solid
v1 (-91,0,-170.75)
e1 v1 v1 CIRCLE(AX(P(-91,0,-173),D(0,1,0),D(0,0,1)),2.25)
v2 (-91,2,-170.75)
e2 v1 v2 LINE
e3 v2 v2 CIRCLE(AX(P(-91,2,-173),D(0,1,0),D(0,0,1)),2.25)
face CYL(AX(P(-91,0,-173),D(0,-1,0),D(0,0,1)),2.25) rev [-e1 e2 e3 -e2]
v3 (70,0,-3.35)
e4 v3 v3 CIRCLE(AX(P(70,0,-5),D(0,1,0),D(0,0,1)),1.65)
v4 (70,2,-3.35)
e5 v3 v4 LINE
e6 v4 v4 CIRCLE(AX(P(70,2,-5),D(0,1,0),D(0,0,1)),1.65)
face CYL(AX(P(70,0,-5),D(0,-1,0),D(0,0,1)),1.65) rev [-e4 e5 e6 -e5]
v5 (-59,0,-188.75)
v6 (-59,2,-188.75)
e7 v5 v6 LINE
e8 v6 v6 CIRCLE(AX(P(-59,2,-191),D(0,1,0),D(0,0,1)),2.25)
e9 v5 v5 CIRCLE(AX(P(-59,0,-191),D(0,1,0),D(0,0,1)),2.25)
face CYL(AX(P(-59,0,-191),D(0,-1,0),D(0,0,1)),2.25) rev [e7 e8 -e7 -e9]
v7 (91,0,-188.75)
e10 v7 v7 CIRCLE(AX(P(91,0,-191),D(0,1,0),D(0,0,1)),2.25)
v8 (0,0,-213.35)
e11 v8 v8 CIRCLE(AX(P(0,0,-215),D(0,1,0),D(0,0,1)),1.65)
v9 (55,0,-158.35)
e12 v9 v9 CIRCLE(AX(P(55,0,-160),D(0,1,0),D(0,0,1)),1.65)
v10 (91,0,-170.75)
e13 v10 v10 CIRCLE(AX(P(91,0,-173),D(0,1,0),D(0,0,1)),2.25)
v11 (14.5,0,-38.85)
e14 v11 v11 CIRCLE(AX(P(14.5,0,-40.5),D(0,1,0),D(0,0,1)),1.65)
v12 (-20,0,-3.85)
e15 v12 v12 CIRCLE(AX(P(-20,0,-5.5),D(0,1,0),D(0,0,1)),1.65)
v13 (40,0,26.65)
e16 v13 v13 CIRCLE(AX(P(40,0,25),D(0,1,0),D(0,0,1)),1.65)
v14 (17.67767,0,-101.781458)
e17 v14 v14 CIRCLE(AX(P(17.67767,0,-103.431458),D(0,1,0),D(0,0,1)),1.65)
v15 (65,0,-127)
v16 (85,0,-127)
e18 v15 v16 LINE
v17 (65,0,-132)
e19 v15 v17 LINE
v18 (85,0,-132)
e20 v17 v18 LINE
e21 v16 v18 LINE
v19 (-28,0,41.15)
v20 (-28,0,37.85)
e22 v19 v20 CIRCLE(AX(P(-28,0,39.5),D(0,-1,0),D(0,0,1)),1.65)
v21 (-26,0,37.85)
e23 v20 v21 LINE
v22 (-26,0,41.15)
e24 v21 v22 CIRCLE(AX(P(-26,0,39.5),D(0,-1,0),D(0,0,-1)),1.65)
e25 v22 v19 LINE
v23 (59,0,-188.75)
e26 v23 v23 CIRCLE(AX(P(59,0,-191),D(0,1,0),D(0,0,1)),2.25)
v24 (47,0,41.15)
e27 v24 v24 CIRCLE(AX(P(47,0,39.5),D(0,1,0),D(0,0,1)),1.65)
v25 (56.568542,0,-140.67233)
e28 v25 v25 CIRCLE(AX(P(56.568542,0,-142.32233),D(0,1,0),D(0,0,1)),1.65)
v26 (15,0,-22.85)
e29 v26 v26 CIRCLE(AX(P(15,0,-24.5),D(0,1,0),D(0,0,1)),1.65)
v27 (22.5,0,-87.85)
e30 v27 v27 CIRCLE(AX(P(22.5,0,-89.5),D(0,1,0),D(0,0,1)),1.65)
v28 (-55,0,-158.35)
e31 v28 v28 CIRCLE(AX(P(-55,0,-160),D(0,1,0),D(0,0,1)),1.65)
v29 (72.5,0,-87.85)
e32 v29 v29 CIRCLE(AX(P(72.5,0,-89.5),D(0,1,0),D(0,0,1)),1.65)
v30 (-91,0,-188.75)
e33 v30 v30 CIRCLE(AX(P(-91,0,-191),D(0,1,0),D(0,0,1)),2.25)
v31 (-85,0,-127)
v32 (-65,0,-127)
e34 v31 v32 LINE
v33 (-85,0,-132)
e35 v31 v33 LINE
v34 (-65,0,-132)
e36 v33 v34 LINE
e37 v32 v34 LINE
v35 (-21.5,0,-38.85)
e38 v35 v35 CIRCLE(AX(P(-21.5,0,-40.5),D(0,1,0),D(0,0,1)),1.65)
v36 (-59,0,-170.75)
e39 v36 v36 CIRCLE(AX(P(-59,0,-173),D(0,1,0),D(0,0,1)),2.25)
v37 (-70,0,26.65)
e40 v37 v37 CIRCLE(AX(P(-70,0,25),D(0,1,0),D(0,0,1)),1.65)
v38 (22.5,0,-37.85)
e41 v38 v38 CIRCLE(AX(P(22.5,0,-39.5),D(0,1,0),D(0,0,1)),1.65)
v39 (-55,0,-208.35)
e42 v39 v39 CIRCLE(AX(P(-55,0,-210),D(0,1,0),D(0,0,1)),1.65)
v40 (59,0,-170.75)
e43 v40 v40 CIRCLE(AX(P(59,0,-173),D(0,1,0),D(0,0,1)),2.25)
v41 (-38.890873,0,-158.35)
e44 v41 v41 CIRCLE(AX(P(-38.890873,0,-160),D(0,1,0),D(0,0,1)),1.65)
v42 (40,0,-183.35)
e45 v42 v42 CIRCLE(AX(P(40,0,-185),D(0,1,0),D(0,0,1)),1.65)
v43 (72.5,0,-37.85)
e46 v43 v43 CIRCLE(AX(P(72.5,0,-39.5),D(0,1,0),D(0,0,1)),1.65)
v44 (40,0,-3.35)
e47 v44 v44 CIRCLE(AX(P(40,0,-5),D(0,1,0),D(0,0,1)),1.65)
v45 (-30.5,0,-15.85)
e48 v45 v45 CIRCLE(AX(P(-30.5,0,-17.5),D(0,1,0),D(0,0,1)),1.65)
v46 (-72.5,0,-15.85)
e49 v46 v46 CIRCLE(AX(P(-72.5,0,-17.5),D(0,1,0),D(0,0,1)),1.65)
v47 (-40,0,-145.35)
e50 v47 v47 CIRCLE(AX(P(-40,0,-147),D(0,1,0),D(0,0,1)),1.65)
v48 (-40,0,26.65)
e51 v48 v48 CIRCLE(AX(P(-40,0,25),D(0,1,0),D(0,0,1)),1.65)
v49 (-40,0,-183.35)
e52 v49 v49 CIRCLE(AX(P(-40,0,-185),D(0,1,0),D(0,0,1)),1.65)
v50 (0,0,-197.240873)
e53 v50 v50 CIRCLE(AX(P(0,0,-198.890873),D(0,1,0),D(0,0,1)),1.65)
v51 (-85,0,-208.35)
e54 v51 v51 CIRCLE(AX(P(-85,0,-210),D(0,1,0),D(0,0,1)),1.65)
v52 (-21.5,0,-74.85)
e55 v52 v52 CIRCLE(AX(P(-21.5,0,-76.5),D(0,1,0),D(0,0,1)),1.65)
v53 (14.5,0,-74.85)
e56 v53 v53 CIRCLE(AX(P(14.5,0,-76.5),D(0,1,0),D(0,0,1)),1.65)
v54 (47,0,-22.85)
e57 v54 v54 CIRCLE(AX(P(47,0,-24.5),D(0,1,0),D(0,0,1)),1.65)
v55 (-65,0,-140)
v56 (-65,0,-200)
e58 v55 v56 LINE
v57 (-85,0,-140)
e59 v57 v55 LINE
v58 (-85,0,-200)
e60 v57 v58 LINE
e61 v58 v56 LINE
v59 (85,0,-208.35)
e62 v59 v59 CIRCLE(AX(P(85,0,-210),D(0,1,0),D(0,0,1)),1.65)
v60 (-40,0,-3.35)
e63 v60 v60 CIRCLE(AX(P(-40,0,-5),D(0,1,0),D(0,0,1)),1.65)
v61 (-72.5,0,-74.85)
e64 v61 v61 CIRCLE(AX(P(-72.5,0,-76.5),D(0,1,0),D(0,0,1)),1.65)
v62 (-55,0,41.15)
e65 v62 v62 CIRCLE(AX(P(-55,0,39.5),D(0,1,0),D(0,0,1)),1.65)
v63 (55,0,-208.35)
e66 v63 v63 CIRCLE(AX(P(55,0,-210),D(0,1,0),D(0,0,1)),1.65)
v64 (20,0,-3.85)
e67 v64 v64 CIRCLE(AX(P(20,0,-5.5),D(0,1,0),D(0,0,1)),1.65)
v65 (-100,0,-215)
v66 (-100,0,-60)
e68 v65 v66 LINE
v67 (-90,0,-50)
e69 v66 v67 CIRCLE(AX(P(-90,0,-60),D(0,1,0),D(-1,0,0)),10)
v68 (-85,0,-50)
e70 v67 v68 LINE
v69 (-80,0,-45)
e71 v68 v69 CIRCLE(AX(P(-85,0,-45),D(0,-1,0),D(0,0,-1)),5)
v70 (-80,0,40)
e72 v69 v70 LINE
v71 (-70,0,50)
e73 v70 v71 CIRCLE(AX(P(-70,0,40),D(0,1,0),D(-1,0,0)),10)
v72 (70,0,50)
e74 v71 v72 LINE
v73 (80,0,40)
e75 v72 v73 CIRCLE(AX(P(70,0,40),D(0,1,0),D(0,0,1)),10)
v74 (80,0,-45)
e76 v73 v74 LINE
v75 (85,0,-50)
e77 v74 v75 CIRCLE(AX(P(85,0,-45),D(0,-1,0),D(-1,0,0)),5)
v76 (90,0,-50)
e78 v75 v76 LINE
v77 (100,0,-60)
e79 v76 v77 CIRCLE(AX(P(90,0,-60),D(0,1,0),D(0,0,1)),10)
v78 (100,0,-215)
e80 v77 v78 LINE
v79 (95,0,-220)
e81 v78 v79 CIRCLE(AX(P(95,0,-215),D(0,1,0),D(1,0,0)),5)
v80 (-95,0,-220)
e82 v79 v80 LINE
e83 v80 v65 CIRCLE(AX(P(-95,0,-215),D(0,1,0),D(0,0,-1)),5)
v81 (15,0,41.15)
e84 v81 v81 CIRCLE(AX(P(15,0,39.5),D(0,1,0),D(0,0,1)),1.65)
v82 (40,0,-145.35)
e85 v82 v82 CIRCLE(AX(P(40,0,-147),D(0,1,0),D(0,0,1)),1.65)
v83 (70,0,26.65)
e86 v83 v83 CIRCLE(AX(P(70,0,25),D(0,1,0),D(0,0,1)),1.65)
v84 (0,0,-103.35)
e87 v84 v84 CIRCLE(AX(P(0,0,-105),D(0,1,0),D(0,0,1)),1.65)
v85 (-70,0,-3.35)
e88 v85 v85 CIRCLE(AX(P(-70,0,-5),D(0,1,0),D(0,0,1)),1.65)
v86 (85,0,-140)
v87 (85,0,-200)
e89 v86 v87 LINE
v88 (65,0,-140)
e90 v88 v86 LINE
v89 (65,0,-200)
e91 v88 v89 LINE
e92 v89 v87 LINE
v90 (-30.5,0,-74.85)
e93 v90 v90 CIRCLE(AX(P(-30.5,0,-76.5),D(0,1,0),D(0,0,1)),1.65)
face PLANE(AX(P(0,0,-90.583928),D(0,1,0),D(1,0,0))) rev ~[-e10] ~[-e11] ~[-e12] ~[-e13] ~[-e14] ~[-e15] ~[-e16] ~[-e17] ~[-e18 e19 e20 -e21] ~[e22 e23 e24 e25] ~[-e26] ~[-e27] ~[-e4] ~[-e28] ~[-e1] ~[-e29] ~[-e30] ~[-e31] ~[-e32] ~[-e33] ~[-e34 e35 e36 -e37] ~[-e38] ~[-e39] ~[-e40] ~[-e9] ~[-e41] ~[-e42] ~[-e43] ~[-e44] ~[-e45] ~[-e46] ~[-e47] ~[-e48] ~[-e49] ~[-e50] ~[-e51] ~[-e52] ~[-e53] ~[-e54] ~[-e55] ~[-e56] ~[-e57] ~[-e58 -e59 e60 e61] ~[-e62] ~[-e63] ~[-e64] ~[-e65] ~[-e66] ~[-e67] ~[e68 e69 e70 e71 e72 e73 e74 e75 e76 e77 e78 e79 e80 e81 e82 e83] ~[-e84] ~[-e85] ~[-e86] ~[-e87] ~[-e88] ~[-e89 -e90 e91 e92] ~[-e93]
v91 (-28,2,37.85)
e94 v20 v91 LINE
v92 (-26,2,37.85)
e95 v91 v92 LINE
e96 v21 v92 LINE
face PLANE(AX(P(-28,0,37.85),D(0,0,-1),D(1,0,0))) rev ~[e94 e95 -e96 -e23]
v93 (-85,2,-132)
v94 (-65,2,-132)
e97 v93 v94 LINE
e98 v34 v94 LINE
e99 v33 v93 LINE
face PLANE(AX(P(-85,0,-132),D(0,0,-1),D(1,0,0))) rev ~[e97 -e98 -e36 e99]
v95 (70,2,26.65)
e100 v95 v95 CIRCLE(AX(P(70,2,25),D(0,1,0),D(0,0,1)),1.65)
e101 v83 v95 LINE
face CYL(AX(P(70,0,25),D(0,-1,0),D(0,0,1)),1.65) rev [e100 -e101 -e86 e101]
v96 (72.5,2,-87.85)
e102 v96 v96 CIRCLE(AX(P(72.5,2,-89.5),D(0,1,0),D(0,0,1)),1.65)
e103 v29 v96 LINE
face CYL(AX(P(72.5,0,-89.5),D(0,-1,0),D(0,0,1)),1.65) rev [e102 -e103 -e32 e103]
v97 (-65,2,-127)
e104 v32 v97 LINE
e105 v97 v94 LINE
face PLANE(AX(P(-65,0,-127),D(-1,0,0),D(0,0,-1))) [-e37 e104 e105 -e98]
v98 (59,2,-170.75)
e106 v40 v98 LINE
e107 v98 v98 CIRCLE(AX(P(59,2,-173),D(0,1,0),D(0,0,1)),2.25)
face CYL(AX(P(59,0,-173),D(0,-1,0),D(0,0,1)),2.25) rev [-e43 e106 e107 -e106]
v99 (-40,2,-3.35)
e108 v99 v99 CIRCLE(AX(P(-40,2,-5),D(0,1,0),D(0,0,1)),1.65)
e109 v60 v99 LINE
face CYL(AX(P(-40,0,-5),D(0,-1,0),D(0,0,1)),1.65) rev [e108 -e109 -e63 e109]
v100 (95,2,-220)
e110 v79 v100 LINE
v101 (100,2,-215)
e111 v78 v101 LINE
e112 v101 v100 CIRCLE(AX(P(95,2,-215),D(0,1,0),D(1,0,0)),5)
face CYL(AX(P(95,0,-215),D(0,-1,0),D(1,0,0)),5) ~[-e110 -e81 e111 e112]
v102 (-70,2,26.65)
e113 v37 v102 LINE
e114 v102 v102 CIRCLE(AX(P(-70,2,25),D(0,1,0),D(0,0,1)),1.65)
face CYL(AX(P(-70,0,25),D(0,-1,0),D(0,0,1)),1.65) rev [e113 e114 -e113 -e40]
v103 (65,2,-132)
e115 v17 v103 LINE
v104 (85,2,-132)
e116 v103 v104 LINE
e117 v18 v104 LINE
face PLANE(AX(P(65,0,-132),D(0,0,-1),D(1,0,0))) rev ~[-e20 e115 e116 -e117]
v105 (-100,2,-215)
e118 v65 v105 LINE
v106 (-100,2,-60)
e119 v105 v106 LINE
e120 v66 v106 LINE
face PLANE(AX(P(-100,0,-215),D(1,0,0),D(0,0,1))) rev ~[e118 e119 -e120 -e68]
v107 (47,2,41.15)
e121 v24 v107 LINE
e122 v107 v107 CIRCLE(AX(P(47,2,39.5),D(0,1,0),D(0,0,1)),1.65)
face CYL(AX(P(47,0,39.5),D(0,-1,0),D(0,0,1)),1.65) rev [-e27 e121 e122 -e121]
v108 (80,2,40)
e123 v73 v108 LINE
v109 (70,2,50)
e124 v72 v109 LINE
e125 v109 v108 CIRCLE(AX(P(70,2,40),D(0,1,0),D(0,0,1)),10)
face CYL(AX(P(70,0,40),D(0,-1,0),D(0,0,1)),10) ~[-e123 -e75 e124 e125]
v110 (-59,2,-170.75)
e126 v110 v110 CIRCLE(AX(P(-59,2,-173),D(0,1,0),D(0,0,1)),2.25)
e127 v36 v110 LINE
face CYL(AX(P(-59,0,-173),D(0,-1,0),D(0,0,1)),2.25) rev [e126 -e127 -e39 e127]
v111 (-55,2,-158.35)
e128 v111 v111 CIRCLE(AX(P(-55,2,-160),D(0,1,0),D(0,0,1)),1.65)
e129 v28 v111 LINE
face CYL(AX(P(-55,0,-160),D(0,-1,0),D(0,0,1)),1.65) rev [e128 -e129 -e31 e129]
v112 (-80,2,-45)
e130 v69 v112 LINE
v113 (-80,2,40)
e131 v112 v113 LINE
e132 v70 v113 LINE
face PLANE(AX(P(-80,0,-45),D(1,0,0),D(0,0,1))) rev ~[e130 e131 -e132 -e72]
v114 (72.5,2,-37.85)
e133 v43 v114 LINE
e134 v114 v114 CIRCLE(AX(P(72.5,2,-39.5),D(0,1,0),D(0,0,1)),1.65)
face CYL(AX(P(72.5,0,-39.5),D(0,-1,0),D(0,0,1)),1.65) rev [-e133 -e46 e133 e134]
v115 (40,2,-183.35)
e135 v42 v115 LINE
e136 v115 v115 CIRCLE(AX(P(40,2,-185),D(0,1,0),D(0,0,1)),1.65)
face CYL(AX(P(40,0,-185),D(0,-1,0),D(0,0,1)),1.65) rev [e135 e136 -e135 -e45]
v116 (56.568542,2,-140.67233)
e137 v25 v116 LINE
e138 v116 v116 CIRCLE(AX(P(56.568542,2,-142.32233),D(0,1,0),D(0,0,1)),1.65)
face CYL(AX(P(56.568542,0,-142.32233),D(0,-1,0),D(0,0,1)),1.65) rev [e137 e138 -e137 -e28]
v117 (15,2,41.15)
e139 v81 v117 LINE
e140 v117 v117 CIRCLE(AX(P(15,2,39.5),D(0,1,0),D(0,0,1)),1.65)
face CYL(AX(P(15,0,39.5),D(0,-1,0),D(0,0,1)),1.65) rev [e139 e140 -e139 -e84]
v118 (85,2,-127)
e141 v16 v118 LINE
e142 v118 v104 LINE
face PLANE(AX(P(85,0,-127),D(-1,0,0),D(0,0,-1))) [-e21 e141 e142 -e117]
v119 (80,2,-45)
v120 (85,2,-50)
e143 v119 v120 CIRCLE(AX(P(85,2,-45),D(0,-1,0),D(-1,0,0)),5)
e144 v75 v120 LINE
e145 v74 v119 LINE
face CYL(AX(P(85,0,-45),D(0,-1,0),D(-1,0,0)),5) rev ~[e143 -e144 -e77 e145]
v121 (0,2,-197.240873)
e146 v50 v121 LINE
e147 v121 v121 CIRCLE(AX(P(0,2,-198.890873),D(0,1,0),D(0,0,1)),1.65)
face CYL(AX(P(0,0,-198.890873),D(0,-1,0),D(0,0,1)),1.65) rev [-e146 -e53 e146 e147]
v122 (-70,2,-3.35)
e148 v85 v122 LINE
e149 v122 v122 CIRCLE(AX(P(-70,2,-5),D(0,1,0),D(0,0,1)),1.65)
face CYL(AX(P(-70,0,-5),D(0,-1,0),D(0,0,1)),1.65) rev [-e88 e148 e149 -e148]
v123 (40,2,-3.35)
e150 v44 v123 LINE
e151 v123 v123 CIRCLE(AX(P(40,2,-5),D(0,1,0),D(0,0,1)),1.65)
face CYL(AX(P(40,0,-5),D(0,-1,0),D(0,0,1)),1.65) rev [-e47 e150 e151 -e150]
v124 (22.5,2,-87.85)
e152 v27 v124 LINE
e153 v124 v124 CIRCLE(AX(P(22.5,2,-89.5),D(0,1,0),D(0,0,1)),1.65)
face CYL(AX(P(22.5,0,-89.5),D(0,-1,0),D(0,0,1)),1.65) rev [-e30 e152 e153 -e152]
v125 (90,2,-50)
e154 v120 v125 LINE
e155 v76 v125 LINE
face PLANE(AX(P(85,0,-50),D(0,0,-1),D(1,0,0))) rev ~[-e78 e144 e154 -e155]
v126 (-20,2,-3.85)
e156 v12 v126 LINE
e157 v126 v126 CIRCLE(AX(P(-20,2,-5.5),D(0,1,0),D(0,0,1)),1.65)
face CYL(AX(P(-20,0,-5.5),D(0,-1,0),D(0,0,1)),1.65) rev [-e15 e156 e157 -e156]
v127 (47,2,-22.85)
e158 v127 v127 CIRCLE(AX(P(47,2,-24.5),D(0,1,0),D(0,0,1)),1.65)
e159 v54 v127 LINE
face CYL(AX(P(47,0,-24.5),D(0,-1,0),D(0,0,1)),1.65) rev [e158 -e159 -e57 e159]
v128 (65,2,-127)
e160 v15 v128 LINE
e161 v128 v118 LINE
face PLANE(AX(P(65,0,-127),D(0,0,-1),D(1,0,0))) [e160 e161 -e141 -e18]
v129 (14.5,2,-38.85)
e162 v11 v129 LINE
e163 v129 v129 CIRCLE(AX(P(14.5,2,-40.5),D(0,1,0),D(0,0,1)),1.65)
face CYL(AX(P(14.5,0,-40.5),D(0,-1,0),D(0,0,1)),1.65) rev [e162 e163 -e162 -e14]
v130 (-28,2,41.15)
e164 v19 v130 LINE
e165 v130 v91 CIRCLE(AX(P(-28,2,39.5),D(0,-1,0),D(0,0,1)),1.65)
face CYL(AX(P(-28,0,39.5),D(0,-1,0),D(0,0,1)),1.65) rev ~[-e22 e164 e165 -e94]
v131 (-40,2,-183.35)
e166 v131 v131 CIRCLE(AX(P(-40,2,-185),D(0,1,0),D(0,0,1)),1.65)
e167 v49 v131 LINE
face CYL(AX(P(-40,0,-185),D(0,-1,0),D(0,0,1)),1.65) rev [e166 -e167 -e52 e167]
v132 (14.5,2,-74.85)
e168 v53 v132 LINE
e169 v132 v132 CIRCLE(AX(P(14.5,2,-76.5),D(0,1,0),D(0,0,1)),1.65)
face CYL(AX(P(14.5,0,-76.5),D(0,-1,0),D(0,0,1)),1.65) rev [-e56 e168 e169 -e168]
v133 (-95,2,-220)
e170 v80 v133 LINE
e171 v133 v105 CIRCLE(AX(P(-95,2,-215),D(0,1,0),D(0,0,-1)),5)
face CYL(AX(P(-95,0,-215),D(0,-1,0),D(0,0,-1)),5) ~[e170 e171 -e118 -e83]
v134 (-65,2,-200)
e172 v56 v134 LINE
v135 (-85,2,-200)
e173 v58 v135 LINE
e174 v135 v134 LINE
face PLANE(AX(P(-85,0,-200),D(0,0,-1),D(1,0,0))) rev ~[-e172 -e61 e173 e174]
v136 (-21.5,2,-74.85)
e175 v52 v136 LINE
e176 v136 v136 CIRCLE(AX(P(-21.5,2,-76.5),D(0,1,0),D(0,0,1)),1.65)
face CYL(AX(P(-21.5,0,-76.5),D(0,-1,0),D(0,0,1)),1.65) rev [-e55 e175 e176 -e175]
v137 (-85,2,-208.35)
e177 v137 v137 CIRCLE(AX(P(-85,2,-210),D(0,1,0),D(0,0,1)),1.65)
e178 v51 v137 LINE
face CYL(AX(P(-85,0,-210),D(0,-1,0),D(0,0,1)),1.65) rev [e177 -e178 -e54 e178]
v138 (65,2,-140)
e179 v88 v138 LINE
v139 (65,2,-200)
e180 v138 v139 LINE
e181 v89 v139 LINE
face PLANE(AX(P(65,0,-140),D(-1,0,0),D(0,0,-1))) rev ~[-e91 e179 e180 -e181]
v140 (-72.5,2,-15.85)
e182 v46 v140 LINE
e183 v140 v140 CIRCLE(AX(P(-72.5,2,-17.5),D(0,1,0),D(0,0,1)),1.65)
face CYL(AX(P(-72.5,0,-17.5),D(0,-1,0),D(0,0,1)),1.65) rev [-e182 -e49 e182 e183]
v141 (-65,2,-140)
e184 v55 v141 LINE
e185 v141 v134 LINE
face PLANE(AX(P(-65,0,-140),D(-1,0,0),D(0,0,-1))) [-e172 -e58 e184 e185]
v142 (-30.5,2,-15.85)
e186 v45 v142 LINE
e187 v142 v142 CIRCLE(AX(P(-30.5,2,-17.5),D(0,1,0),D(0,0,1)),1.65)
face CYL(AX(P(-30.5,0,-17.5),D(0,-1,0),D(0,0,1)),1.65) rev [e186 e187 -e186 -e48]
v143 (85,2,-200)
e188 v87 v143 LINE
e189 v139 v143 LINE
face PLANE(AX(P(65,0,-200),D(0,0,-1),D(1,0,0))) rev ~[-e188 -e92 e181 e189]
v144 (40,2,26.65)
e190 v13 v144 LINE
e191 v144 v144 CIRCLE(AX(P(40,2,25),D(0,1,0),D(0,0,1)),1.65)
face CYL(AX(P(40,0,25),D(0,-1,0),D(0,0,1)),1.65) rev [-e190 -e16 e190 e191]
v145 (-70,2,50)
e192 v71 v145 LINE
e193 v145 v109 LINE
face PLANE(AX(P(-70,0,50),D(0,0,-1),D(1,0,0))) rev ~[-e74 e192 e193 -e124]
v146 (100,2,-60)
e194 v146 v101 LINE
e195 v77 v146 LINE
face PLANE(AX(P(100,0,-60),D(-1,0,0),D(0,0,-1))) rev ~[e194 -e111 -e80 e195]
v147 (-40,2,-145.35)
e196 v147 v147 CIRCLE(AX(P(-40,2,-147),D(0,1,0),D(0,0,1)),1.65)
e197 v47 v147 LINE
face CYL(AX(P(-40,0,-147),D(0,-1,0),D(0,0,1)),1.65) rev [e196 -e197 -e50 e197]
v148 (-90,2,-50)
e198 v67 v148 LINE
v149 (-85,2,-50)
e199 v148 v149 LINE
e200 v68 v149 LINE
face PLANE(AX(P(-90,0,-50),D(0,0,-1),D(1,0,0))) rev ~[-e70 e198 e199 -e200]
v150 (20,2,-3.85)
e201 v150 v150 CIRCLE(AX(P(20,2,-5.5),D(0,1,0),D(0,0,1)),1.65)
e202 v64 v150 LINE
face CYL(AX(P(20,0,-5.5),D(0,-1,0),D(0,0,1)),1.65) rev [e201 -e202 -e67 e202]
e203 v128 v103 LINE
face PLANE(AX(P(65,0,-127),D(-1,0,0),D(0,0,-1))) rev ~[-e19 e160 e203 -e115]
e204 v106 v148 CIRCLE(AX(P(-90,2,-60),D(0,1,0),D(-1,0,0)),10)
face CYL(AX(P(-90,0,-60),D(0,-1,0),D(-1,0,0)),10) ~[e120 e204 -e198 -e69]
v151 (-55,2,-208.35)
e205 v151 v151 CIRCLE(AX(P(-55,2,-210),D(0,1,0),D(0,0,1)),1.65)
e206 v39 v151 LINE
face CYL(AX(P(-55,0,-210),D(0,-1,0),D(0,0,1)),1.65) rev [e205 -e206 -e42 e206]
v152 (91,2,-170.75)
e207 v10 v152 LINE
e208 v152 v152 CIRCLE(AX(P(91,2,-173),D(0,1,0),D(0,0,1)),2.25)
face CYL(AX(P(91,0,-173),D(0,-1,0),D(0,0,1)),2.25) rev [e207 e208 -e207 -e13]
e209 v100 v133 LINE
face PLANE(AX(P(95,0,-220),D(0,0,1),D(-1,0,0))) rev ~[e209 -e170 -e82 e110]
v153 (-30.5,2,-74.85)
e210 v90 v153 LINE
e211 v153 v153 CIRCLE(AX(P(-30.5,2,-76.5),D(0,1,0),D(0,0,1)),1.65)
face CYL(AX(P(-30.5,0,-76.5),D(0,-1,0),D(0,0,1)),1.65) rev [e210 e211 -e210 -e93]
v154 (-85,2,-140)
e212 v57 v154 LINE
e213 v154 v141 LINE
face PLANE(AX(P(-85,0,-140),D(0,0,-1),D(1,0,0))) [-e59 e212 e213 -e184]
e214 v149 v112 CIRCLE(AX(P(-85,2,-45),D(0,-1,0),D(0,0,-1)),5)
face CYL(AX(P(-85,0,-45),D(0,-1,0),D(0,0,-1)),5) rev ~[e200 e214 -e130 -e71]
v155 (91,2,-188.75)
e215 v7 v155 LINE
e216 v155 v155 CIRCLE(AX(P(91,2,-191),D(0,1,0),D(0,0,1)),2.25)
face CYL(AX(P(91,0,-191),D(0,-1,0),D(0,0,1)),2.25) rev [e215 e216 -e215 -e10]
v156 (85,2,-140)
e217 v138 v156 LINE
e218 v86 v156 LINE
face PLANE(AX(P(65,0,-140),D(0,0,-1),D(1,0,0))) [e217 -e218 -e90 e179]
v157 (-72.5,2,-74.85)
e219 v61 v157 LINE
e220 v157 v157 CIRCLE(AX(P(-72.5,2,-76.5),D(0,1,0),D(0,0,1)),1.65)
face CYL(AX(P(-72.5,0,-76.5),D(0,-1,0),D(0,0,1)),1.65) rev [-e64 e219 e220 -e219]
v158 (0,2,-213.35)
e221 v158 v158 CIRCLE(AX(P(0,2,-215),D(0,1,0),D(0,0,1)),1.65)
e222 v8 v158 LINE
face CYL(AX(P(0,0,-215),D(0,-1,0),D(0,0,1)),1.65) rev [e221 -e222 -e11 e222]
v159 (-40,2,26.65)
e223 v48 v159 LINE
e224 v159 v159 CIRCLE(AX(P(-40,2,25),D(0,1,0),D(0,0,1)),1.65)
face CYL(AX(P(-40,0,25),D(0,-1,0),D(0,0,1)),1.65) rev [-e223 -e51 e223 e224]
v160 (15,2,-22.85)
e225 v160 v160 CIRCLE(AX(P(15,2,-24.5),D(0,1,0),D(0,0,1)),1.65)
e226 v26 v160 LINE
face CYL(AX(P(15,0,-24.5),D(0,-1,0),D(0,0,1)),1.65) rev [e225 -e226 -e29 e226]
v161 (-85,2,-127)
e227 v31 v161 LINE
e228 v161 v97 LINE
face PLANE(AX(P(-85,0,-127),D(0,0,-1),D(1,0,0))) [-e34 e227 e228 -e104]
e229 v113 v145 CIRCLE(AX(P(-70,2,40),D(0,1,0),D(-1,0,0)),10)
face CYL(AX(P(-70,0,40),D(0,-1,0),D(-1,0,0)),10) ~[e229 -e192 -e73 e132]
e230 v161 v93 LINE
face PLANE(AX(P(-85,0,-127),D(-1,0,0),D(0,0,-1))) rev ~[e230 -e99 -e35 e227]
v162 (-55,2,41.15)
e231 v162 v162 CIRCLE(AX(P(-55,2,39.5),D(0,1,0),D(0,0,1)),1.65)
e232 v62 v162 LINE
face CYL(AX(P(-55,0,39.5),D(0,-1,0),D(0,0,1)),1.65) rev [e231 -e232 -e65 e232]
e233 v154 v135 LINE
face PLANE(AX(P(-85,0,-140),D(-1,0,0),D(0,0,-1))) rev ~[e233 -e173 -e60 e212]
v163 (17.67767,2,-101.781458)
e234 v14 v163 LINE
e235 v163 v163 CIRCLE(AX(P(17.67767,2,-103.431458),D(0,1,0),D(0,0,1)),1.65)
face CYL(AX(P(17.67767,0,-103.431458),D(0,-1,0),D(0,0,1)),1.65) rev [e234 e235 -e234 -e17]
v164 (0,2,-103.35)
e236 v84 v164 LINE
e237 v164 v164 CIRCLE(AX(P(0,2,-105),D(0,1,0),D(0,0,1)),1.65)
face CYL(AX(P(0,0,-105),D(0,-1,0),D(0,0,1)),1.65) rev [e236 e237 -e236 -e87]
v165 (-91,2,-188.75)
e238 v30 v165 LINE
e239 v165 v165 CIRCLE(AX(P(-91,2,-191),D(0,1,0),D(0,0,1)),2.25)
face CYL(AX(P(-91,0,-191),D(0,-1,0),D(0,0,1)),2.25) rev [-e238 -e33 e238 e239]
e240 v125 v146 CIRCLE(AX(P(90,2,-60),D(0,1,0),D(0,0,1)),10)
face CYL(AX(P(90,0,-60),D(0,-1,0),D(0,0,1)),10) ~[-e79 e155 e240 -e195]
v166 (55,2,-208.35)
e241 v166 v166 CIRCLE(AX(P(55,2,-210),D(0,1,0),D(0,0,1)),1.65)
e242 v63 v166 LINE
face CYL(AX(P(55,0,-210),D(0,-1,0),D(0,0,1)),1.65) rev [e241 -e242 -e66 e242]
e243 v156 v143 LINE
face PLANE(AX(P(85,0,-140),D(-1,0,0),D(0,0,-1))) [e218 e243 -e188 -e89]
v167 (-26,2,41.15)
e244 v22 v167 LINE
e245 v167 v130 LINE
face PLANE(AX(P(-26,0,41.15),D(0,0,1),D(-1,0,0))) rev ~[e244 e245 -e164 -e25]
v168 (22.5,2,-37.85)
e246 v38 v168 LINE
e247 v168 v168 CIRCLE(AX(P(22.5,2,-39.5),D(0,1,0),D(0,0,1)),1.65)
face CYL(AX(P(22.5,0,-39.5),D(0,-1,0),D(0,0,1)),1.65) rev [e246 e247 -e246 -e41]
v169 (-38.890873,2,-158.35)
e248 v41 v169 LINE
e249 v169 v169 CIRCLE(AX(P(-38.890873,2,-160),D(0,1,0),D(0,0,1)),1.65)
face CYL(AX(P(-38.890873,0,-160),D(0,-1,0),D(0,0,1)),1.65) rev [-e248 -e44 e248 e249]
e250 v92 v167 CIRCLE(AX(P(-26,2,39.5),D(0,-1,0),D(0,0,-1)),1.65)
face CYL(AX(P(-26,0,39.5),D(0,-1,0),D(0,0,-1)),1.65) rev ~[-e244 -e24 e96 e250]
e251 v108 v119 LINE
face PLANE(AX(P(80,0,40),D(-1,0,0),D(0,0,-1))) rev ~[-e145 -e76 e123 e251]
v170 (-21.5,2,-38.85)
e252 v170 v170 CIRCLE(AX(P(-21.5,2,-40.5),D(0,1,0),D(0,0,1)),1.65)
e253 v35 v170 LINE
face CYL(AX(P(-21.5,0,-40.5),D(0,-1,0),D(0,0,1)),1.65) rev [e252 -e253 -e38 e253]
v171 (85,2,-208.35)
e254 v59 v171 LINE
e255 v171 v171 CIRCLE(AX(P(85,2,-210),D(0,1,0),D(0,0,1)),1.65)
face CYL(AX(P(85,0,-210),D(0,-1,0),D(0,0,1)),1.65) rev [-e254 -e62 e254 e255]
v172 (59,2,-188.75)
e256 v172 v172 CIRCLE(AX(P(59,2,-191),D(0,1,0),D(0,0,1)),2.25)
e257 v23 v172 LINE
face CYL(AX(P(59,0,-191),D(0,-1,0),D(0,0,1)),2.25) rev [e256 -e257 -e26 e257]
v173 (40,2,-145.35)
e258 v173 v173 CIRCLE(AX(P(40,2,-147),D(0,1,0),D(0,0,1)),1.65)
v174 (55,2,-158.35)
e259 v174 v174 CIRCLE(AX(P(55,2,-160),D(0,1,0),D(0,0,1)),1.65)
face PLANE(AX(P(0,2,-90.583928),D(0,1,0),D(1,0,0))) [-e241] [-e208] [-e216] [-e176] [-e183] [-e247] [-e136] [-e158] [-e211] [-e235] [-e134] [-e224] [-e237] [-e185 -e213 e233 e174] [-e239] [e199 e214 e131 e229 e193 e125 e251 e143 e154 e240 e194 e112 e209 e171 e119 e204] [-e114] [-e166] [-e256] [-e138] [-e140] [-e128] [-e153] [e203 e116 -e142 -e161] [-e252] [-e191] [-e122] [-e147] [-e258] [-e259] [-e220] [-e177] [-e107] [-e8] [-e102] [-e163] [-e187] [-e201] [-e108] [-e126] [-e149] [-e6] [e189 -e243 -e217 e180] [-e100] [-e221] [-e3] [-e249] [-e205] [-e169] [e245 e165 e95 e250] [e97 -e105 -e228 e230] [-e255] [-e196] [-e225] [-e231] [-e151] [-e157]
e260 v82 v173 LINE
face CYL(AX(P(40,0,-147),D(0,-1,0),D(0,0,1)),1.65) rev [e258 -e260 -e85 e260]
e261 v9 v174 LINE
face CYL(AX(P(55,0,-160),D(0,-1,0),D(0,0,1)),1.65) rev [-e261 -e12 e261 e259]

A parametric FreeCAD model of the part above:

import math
import FreeCAD as App
import Part
import Sketcher
from FreeCAD import Vector

doc = App.newDocument("Part")
body = doc.addObject("PartDesign::Body", "Body")

# Sketch on XZ plane
sketch1 = doc.addObject("Sketcher::SketchObject", "Sketch")
body.addObject(sketch1)
sketch1.AttachmentSupport = (doc.XZ_Plane, [""])
sketch1.MapMode = "FlatFace"
sketch1.addGeometry(Part.LineSegment(Vector(85, -50, 0), Vector(90, -50, 0)), False)
sketch1.addGeometry(Part.ArcOfCircle(Part.Circle(Vector(90, -60, 0), Vector(0, 0, 1), 10), math.radians(0), math.radians(90)), False)
sketch1.addGeometry(Part.LineSegment(Vector(100, -60, 0), Vector(100, -215, 0)), False)
sketch1.addGeometry(Part.ArcOfCircle(Part.Circle(Vector(95, -215, 0), Vector(0, 0, 1), 5), math.radians(-90), math.radians(0)), False)
sketch1.addGeometry(Part.LineSegment(Vector(95, -220, 0), Vector(-95, -220, 0)), False)
sketch1.addGeometry(Part.ArcOfCircle(Part.Circle(Vector(-95, -215, 0), Vector(0, 0, 1), 5), math.radians(180), math.radians(270)), False)
sketch1.addGeometry(Part.LineSegment(Vector(-100, -215, 0), Vector(-100, -60, 0)), False)
sketch1.addGeometry(Part.ArcOfCircle(Part.Circle(Vector(-90, -60, 0), Vector(0, 0, 1), 10), math.radians(90), math.radians(180)), False)
sketch1.addGeometry(Part.LineSegment(Vector(-90, -50, 0), Vector(-85, -50, 0)), False)
sketch1.addGeometry(Part.ArcOfCircle(Part.Circle(Vector(-85, -45, 0), Vector(0, 0, 1), 5), math.radians(-90), math.radians(0)), False)
sketch1.addGeometry(Part.LineSegment(Vector(-80, -45, 0), Vector(-80, 40, 0)), False)
sketch1.addGeometry(Part.ArcOfCircle(Part.Circle(Vector(-70, 40, 0), Vector(0, 0, 1), 10), math.radians(90), math.radians(180)), False)
sketch1.addGeometry(Part.LineSegment(Vector(-70, 50, 0), Vector(70, 50, 0)), False)
sketch1.addGeometry(Part.ArcOfCircle(Part.Circle(Vector(70, 40, 0), Vector(0, 0, 1), 10), math.radians(0), math.radians(90)), False)
sketch1.addGeometry(Part.LineSegment(Vector(80, 40, 0), Vector(80, -45, 0)), False)
sketch1.addGeometry(Part.ArcOfCircle(Part.Circle(Vector(85, -45, 0), Vector(0, 0, 1), 5), math.radians(180), math.radians(270)), False)
sketch1.addGeometry(Part.Circle(Vector(-70, 25, 0), Vector(0, 0, 1), 1.6), False)
sketch1.addGeometry(Part.Circle(Vector(-55, 39.5, 0), Vector(0, 0, 1), 1.6), False)
sketch1.addGeometry(Part.Circle(Vector(-70, -5, 0), Vector(0, 0, 1), 1.6), False)
sketch1.addGeometry(Part.Circle(Vector(-72.5, -17.5, 0), Vector(0, 0, 1), 1.6), False)
sketch1.addGeometry(Part.ArcOfCircle(Part.Circle(Vector(-28, 39.5, 0), Vector(0, 0, 1), 1.6), math.radians(90), math.radians(270)), False)
sketch1.addGeometry(Part.LineSegment(Vector(-28, 37.9, 0), Vector(-26, 37.9, 0)), False)
sketch1.addGeometry(Part.ArcOfCircle(Part.Circle(Vector(-26, 39.5, 0), Vector(0, 0, 1), 1.6), math.radians(-90), math.radians(90)), False)
sketch1.addGeometry(Part.LineSegment(Vector(-26, 41.1, 0), Vector(-28, 41.1, 0)), False)
sketch1.addGeometry(Part.Circle(Vector(-40, 25, 0), Vector(0, 0, 1), 1.6), False)
sketch1.addGeometry(Part.Circle(Vector(-40, -5, 0), Vector(0, 0, 1), 1.6), False)
sketch1.addGeometry(Part.Circle(Vector(-30.5, -17.5, 0), Vector(0, 0, 1), 1.6), False)
sketch1.addGeometry(Part.Circle(Vector(-20, -5.5, 0), Vector(0, 0, 1), 1.6), False)
sketch1.addGeometry(Part.Circle(Vector(-72.5, -76.5, 0), Vector(0, 0, 1), 1.6), False)
sketch1.addGeometry(Part.Circle(Vector(-21.5, -40.5, 0), Vector(0, 0, 1), 1.6), False)
sketch1.addGeometry(Part.Circle(Vector(-30.5, -76.5, 0), Vector(0, 0, 1), 1.6), False)
sketch1.addGeometry(Part.Circle(Vector(-21.5, -76.5, 0), Vector(0, 0, 1), 1.6), False)
sketch1.addGeometry(Part.Circle(Vector(15, 39.5, 0), Vector(0, 0, 1), 1.6), False)
sketch1.addGeometry(Part.Circle(Vector(40, 25, 0), Vector(0, 0, 1), 1.6), False)
sketch1.addGeometry(Part.Circle(Vector(20, -5.5, 0), Vector(0, 0, 1), 1.6), False)
sketch1.addGeometry(Part.Circle(Vector(40, -5, 0), Vector(0, 0, 1), 1.6), False)
sketch1.addGeometry(Part.Circle(Vector(47, 39.5, 0), Vector(0, 0, 1), 1.6), False)
sketch1.addGeometry(Part.Circle(Vector(70, 25, 0), Vector(0, 0, 1), 1.6), False)
sketch1.addGeometry(Part.Circle(Vector(70, -5, 0), Vector(0, 0, 1), 1.6), False)
sketch1.addGeometry(Part.Circle(Vector(15, -24.5, 0), Vector(0, 0, 1), 1.6), False)
sketch1.addGeometry(Part.Circle(Vector(14.5, -40.5, 0), Vector(0, 0, 1), 1.6), False)
sketch1.addGeometry(Part.Circle(Vector(22.5, -39.5, 0), Vector(0, 0, 1), 1.6), False)
sketch1.addGeometry(Part.Circle(Vector(14.5, -76.5, 0), Vector(0, 0, 1), 1.6), False)
sketch1.addGeometry(Part.Circle(Vector(47, -24.5, 0), Vector(0, 0, 1), 1.6), False)
sketch1.addGeometry(Part.Circle(Vector(72.5, -39.5, 0), Vector(0, 0, 1), 1.6), False)
sketch1.addGeometry(Part.LineSegment(Vector(-65, -127, 0), Vector(-85, -127, 0)), False)
sketch1.addGeometry(Part.LineSegment(Vector(-85, -127, 0), Vector(-85, -132, 0)), False)
sketch1.addGeometry(Part.LineSegment(Vector(-85, -132, 0), Vector(-65, -132, 0)), False)
sketch1.addGeometry(Part.LineSegment(Vector(-65, -132, 0), Vector(-65, -127, 0)), False)
sketch1.addGeometry(Part.Circle(Vector(-40, -147, 0), Vector(0, 0, 1), 1.6), False)
sketch1.addGeometry(Part.Circle(Vector(-91, -173, 0), Vector(0, 0, 1), 2.2), False)
sketch1.addGeometry(Part.LineSegment(Vector(-65, -140, 0), Vector(-85, -140, 0)), False)
sketch1.addGeometry(Part.LineSegment(Vector(-85, -140, 0), Vector(-85, -200, 0)), False)
sketch1.addGeometry(Part.LineSegment(Vector(-85, -200, 0), Vector(-65, -200, 0)), False)
sketch1.addGeometry(Part.LineSegment(Vector(-65, -200, 0), Vector(-65, -140, 0)), False)
sketch1.addGeometry(Part.Circle(Vector(-55, -160, 0), Vector(0, 0, 1), 1.6), False)
sketch1.addGeometry(Part.Circle(Vector(-59, -173, 0), Vector(0, 0, 1), 2.2), False)
sketch1.addGeometry(Part.Circle(Vector(-91, -191, 0), Vector(0, 0, 1), 2.2), False)
sketch1.addGeometry(Part.Circle(Vector(-85, -210, 0), Vector(0, 0, 1), 1.6), False)
sketch1.addGeometry(Part.Circle(Vector(-59, -191, 0), Vector(0, 0, 1), 2.2), False)
sketch1.addGeometry(Part.Circle(Vector(-55, -210, 0), Vector(0, 0, 1), 1.6), False)
sketch1.addGeometry(Part.Circle(Vector(-38.9, -160, 0), Vector(0, 0, 1), 1.6), False)
sketch1.addGeometry(Part.Circle(Vector(-40, -185, 0), Vector(0, 0, 1), 1.6), False)
sketch1.addGeometry(Part.Circle(Vector(22.5, -89.5, 0), Vector(0, 0, 1), 1.6), False)
sketch1.addGeometry(Part.Circle(Vector(17.7, -103.4, 0), Vector(0, 0, 1), 1.6), False)
sketch1.addGeometry(Part.Circle(Vector(0, -105, 0), Vector(0, 0, 1), 1.6), False)
sketch1.addGeometry(Part.Circle(Vector(40, -147, 0), Vector(0, 0, 1), 1.6), False)
sketch1.addGeometry(Part.Circle(Vector(72.5, -89.5, 0), Vector(0, 0, 1), 1.6), False)
sketch1.addGeometry(Part.Circle(Vector(56.6, -142.3, 0), Vector(0, 0, 1), 1.6), False)
sketch1.addGeometry(Part.LineSegment(Vector(85, -127, 0), Vector(65, -127, 0)), False)
sketch1.addGeometry(Part.LineSegment(Vector(65, -127, 0), Vector(65, -132, 0)), False)
sketch1.addGeometry(Part.LineSegment(Vector(65, -132, 0), Vector(85, -132, 0)), False)
sketch1.addGeometry(Part.LineSegment(Vector(85, -132, 0), Vector(85, -127, 0)), False)
sketch1.addGeometry(Part.Circle(Vector(0, -198.9, 0), Vector(0, 0, 1), 1.6), False)
sketch1.addGeometry(Part.Circle(Vector(0, -215, 0), Vector(0, 0, 1), 1.6), False)
sketch1.addGeometry(Part.Circle(Vector(40, -185, 0), Vector(0, 0, 1), 1.6), False)
sketch1.addGeometry(Part.Circle(Vector(55, -160, 0), Vector(0, 0, 1), 1.6), False)
sketch1.addGeometry(Part.Circle(Vector(59, -173, 0), Vector(0, 0, 1), 2.2), False)
sketch1.addGeometry(Part.LineSegment(Vector(85, -140, 0), Vector(65, -140, 0)), False)
sketch1.addGeometry(Part.LineSegment(Vector(65, -140, 0), Vector(65, -200, 0)), False)
sketch1.addGeometry(Part.LineSegment(Vector(65, -200, 0), Vector(85, -200, 0)), False)
sketch1.addGeometry(Part.LineSegment(Vector(85, -200, 0), Vector(85, -140, 0)), False)
sketch1.addGeometry(Part.Circle(Vector(91, -173, 0), Vector(0, 0, 1), 2.2), False)
sketch1.addGeometry(Part.Circle(Vector(59, -191, 0), Vector(0, 0, 1), 2.2), False)
sketch1.addGeometry(Part.Circle(Vector(55, -210, 0), Vector(0, 0, 1), 1.6), False)
sketch1.addGeometry(Part.Circle(Vector(91, -191, 0), Vector(0, 0, 1), 2.2), False)
sketch1.addGeometry(Part.Circle(Vector(85, -210, 0), Vector(0, 0, 1), 1.6), False)
sketch1.addConstraint(Sketcher.Constraint("Tangent", 0, 2, 1, 2))
sketch1.addConstraint(Sketcher.Constraint("Tangent", 1, 1, 2, 1))
sketch1.addConstraint(Sketcher.Constraint("Tangent", 2, 2, 3, 2))
sketch1.addConstraint(Sketcher.Constraint("Tangent", 3, 1, 4, 1))
sketch1.addConstraint(Sketcher.Constraint("Tangent", 4, 2, 5, 2))
sketch1.addConstraint(Sketcher.Constraint("Tangent", 5, 1, 6, 1))
sketch1.addConstraint(Sketcher.Constraint("Tangent", 6, 2, 7, 2))
sketch1.addConstraint(Sketcher.Constraint("Tangent", 7, 1, 8, 1))
sketch1.addConstraint(Sketcher.Constraint("Tangent", 8, 2, 9, 1))
sketch1.addConstraint(Sketcher.Constraint("Tangent", 9, 2, 10, 1))
sketch1.addConstraint(Sketcher.Constraint("Tangent", 10, 2, 11, 2))
sketch1.addConstraint(Sketcher.Constraint("Tangent", 11, 1, 12, 1))
sketch1.addConstraint(Sketcher.Constraint("Tangent", 12, 2, 13, 2))
sketch1.addConstraint(Sketcher.Constraint("Tangent", 13, 1, 14, 1))
sketch1.addConstraint(Sketcher.Constraint("Tangent", 14, 2, 15, 1))
sketch1.addConstraint(Sketcher.Constraint("Tangent", 15, 2, 0, 1))
sketch1.addConstraint(Sketcher.Constraint("Tangent", 20, 2, 21, 1))
sketch1.addConstraint(Sketcher.Constraint("Tangent", 21, 2, 22, 1))
sketch1.addConstraint(Sketcher.Constraint("Tangent", 22, 2, 23, 1))
sketch1.addConstraint(Sketcher.Constraint("Tangent", 23, 2, 20, 1))
sketch1.addConstraint(Sketcher.Constraint("Coincident", 45, 2, 46, 1))
sketch1.addConstraint(Sketcher.Constraint("Coincident", 46, 2, 47, 1))
sketch1.addConstraint(Sketcher.Constraint("Coincident", 47, 2, 48, 1))
sketch1.addConstraint(Sketcher.Constraint("Coincident", 48, 2, 45, 1))
sketch1.addConstraint(Sketcher.Constraint("Coincident", 51, 2, 52, 1))
sketch1.addConstraint(Sketcher.Constraint("Coincident", 52, 2, 53, 1))
sketch1.addConstraint(Sketcher.Constraint("Coincident", 53, 2, 54, 1))
sketch1.addConstraint(Sketcher.Constraint("Coincident", 54, 2, 51, 1))
sketch1.addConstraint(Sketcher.Constraint("Coincident", 69, 2, 70, 1))
sketch1.addConstraint(Sketcher.Constraint("Coincident", 70, 2, 71, 1))
sketch1.addConstraint(Sketcher.Constraint("Coincident", 71, 2, 72, 1))
sketch1.addConstraint(Sketcher.Constraint("Coincident", 72, 2, 69, 1))
sketch1.addConstraint(Sketcher.Constraint("Coincident", 78, 2, 79, 1))
sketch1.addConstraint(Sketcher.Constraint("Coincident", 79, 2, 80, 1))
sketch1.addConstraint(Sketcher.Constraint("Coincident", 80, 2, 81, 1))
sketch1.addConstraint(Sketcher.Constraint("Coincident", 81, 2, 78, 1))
sketch1.addConstraint(Sketcher.Constraint("Horizontal", 0))
sketch1.addConstraint(Sketcher.Constraint("Vertical", 2))
sketch1.addConstraint(Sketcher.Constraint("Horizontal", 4))
sketch1.addConstraint(Sketcher.Constraint("Vertical", 6))
sketch1.addConstraint(Sketcher.Constraint("Horizontal", 8))
sketch1.addConstraint(Sketcher.Constraint("Vertical", 10))
sketch1.addConstraint(Sketcher.Constraint("Horizontal", 12))
sketch1.addConstraint(Sketcher.Constraint("Vertical", 14))
sketch1.addConstraint(Sketcher.Constraint("Horizontal", 21))
sketch1.addConstraint(Sketcher.Constraint("Horizontal", 23))
sketch1.addConstraint(Sketcher.Constraint("Horizontal", 45))
sketch1.addConstraint(Sketcher.Constraint("Vertical", 46))
sketch1.addConstraint(Sketcher.Constraint("Horizontal", 47))
sketch1.addConstraint(Sketcher.Constraint("Vertical", 48))
sketch1.addConstraint(Sketcher.Constraint("Horizontal", 51))
sketch1.addConstraint(Sketcher.Constraint("Vertical", 52))
sketch1.addConstraint(Sketcher.Constraint("Horizontal", 53))
sketch1.addConstraint(Sketcher.Constraint("Vertical", 54))
sketch1.addConstraint(Sketcher.Constraint("Horizontal", 69))
sketch1.addConstraint(Sketcher.Constraint("Vertical", 70))
sketch1.addConstraint(Sketcher.Constraint("Horizontal", 71))
sketch1.addConstraint(Sketcher.Constraint("Vertical", 72))
sketch1.addConstraint(Sketcher.Constraint("Horizontal", 78))
sketch1.addConstraint(Sketcher.Constraint("Vertical", 79))
sketch1.addConstraint(Sketcher.Constraint("Horizontal", 80))
sketch1.addConstraint(Sketcher.Constraint("Vertical", 81))
sketch1.addConstraint(Sketcher.Constraint("Equal", 3, 5))
sketch1.addConstraint(Sketcher.Constraint("Equal", 1, 7))
sketch1.addConstraint(Sketcher.Constraint("Equal", 5, 9))
sketch1.addConstraint(Sketcher.Constraint("Equal", 7, 11))
sketch1.addConstraint(Sketcher.Constraint("Equal", 11, 13))
sketch1.addConstraint(Sketcher.Constraint("Equal", 9, 15))
sketch1.addConstraint(Sketcher.Constraint("Equal", 16, 17))
sketch1.addConstraint(Sketcher.Constraint("Equal", 17, 18))
sketch1.addConstraint(Sketcher.Constraint("Equal", 18, 19))
sketch1.addConstraint(Sketcher.Constraint("Equal", 19, 20))
sketch1.addConstraint(Sketcher.Constraint("Equal", 22, 24))
sketch1.addConstraint(Sketcher.Constraint("Equal", 24, 25))
sketch1.addConstraint(Sketcher.Constraint("Equal", 25, 26))
sketch1.addConstraint(Sketcher.Constraint("Equal", 26, 27))
sketch1.addConstraint(Sketcher.Constraint("Equal", 27, 28))
sketch1.addConstraint(Sketcher.Constraint("Equal", 28, 29))
sketch1.addConstraint(Sketcher.Constraint("Equal", 29, 30))
sketch1.addConstraint(Sketcher.Constraint("Equal", 30, 31))
sketch1.addConstraint(Sketcher.Constraint("Equal", 31, 32))
sketch1.addConstraint(Sketcher.Constraint("Equal", 32, 33))
sketch1.addConstraint(Sketcher.Constraint("Equal", 33, 34))
sketch1.addConstraint(Sketcher.Constraint("Equal", 34, 35))
sketch1.addConstraint(Sketcher.Constraint("Equal", 35, 36))
sketch1.addConstraint(Sketcher.Constraint("Equal", 36, 37))
sketch1.addConstraint(Sketcher.Constraint("Equal", 37, 38))
sketch1.addConstraint(Sketcher.Constraint("Equal", 38, 39))
sketch1.addConstraint(Sketcher.Constraint("Equal", 39, 40))
sketch1.addConstraint(Sketcher.Constraint("Equal", 40, 41))
sketch1.addConstraint(Sketcher.Constraint("Equal", 41, 42))
sketch1.addConstraint(Sketcher.Constraint("Equal", 42, 43))
sketch1.addConstraint(Sketcher.Constraint("Equal", 43, 44))
sketch1.addConstraint(Sketcher.Constraint("Equal", 44, 49))
sketch1.addConstraint(Sketcher.Constraint("Equal", 49, 55))
sketch1.addConstraint(Sketcher.Constraint("Equal", 50, 56))
sketch1.addConstraint(Sketcher.Constraint("Equal", 56, 57))
sketch1.addConstraint(Sketcher.Constraint("Equal", 55, 58))
sketch1.addConstraint(Sketcher.Constraint("Equal", 57, 59))
sketch1.addConstraint(Sketcher.Constraint("Equal", 58, 60))
sketch1.addConstraint(Sketcher.Constraint("Equal", 60, 61))
sketch1.addConstraint(Sketcher.Constraint("Equal", 61, 62))
sketch1.addConstraint(Sketcher.Constraint("Equal", 62, 63))
sketch1.addConstraint(Sketcher.Constraint("Equal", 63, 64))
sketch1.addConstraint(Sketcher.Constraint("Equal", 64, 65))
sketch1.addConstraint(Sketcher.Constraint("Equal", 65, 66))
sketch1.addConstraint(Sketcher.Constraint("Equal", 66, 67))
sketch1.addConstraint(Sketcher.Constraint("Equal", 67, 68))
sketch1.addConstraint(Sketcher.Constraint("Equal", 68, 73))
sketch1.addConstraint(Sketcher.Constraint("Equal", 73, 74))
sketch1.addConstraint(Sketcher.Constraint("Equal", 74, 75))
sketch1.addConstraint(Sketcher.Constraint("Equal", 75, 76))
sketch1.addConstraint(Sketcher.Constraint("Equal", 59, 77))
sketch1.addConstraint(Sketcher.Constraint("Equal", 77, 82))
sketch1.addConstraint(Sketcher.Constraint("Equal", 82, 83))
sketch1.addConstraint(Sketcher.Constraint("Equal", 76, 84))
sketch1.addConstraint(Sketcher.Constraint("Equal", 83, 85))
sketch1.addConstraint(Sketcher.Constraint("Equal", 84, 86))
sketch1.addConstraint(Sketcher.Constraint("Symmetric", 1, 3, 7, 3, -2))
sketch1.addConstraint(Sketcher.Constraint("Symmetric", 24, 3, 33, 3, -2))
sketch1.addConstraint(Sketcher.Constraint("Symmetric", 27, 3, 34, 3, -2))
sketch1.addConstraint(Sketcher.Constraint("Symmetric", 25, 3, 35, 3, -2))
sketch1.addConstraint(Sketcher.Constraint("Symmetric", 16, 3, 37, 3, -2))
sketch1.addConstraint(Sketcher.Constraint("Symmetric", 18, 3, 38, 3, -2))
sketch1.addConstraint(Sketcher.Constraint("Symmetric", 49, 3, 66, 3, -2))
sketch1.addConstraint(Sketcher.Constraint("Symmetric", 62, 3, 75, 3, -2))
sketch1.addConstraint(Sketcher.Constraint("Symmetric", 55, 3, 76, 3, -2))
sketch1.addConstraint(Sketcher.Constraint("Symmetric", 56, 3, 77, 3, -2))
sketch1.addConstraint(Sketcher.Constraint("Symmetric", 50, 3, 82, 3, -2))
sketch1.addConstraint(Sketcher.Constraint("Symmetric", 59, 3, 83, 3, -2))
sketch1.addConstraint(Sketcher.Constraint("Symmetric", 60, 3, 84, 3, -2))
sketch1.addConstraint(Sketcher.Constraint("Symmetric", 57, 3, 85, 3, -2))
sketch1.addConstraint(Sketcher.Constraint("Symmetric", 58, 3, 86, 3, -2))
sketch1.addConstraint(Sketcher.Constraint("Symmetric", 48, 2, 69, 2, -2))
sketch1.addConstraint(Sketcher.Constraint("Symmetric", 46, 2, 71, 2, -2))
sketch1.addConstraint(Sketcher.Constraint("Symmetric", 54, 2, 78, 2, -2))
sketch1.addConstraint(Sketcher.Constraint("Symmetric", 52, 2, 80, 2, -2))
sketch1.addConstraint(Sketcher.Constraint("PointOnObject", 65, 3, -2))
sketch1.addConstraint(Sketcher.Constraint("PointOnObject", 73, 3, -2))
sketch1.addConstraint(Sketcher.Constraint("PointOnObject", 74, 3, -2))
sketch1.addConstraint(Sketcher.Constraint("Horizontal", 17, 3, 20, 3))
sketch1.addConstraint(Sketcher.Constraint("Horizontal", 16, 3, 24, 3))
sketch1.addConstraint(Sketcher.Constraint("Horizontal", 18, 3, 25, 3))
sketch1.addConstraint(Sketcher.Constraint("Horizontal", 19, 3, 26, 3))
sketch1.addConstraint(Sketcher.Constraint("Horizontal", 28, 3, 30, 3))
sketch1.addConstraint(Sketcher.Constraint("Horizontal", 30, 3, 31, 3))
sketch1.addConstraint(Sketcher.Constraint("Horizontal", 22, 3, 32, 3))
sketch1.addConstraint(Sketcher.Constraint("Horizontal", 32, 3, 36, 3))
sketch1.addConstraint(Sketcher.Constraint("Horizontal", 29, 3, 40, 3))
sketch1.addConstraint(Sketcher.Constraint("Horizontal", 31, 3, 42, 3))
sketch1.addConstraint(Sketcher.Constraint("Horizontal", 39, 3, 43, 3))
sketch1.addConstraint(Sketcher.Constraint("Horizontal", 41, 3, 44, 3))
sketch1.addConstraint(Sketcher.Constraint("Horizontal", 50, 3, 56, 3))
sketch1.addConstraint(Sketcher.Constraint("Horizontal", 57, 3, 59, 3))
sketch1.addConstraint(Sketcher.Constraint("Horizontal", 58, 3, 60, 3))
sketch1.addConstraint(Sketcher.Constraint("Horizontal", 55, 3, 61, 3))
sketch1.addConstraint(Sketcher.Constraint("Horizontal", 63, 3, 67, 3))
sketch1.addConstraint(Sketcher.Constraint("Horizontal", 5, 3, 74, 3))
sketch1.addConstraint(Sketcher.Constraint("Vertical", 11, 3, 16, 3))
sketch1.addConstraint(Sketcher.Constraint("Vertical", 16, 3, 18, 3))
sketch1.addConstraint(Sketcher.Constraint("Vertical", 24, 3, 25, 3))
sketch1.addConstraint(Sketcher.Constraint("Vertical", 19, 3, 28, 3))
sketch1.addConstraint(Sketcher.Constraint("Vertical", 26, 3, 30, 3))
sketch1.addConstraint(Sketcher.Constraint("Vertical", 29, 3, 31, 3))
sketch1.addConstraint(Sketcher.Constraint("Vertical", 13, 3, 37, 3))
sketch1.addConstraint(Sketcher.Constraint("Vertical", 32, 3, 39, 3))
sketch1.addConstraint(Sketcher.Constraint("Vertical", 40, 3, 42, 3))
sketch1.addConstraint(Sketcher.Constraint("Vertical", 36, 3, 43, 3))
sketch1.addConstraint(Sketcher.Constraint("Vertical", 25, 3, 49, 3))
sketch1.addConstraint(Sketcher.Constraint("Vertical", 17, 3, 55, 3))
sketch1.addConstraint(Sketcher.Constraint("Vertical", 50, 3, 57, 3))
sketch1.addConstraint(Sketcher.Constraint("Vertical", 9, 3, 58, 3))
sketch1.addConstraint(Sketcher.Constraint("Vertical", 56, 3, 59, 3))
sketch1.addConstraint(Sketcher.Constraint("Vertical", 55, 3, 60, 3))
sketch1.addConstraint(Sketcher.Constraint("Vertical", 49, 3, 62, 3))
sketch1.addConstraint(Sketcher.Constraint("Vertical", 41, 3, 63, 3))
sketch1.addConstraint(Sketcher.Constraint("Vertical", 44, 3, 67, 3))
sketch1.addConstraint(Sketcher.Constraint("Vertical", 8, 2, 45, 2))
sketch1.addConstraint(Sketcher.Constraint("Vertical", 46, 2, 51, 2))
sketch1.addConstraint(Sketcher.Constraint("Vertical", 48, 2, 53, 2))
sketch1.addConstraint(Sketcher.Constraint("Equal", 8, 46))
sketch1.addConstraint(Sketcher.Constraint("Radius", 1, 10.0))
sketch1.addConstraint(Sketcher.Constraint("Radius", 3, 5.0))
sketch1.addConstraint(Sketcher.Constraint("Diameter", 16, 3.3))
sketch1.addConstraint(Sketcher.Constraint("Diameter", 50, 4.5))
sketch1.addConstraint(Sketcher.Constraint("DistanceX", 0, 1, 0, 2, 5.0))
sketch1.addConstraint(Sketcher.Constraint("DistanceX", 4, 2, 4, 1, 190.0))
sketch1.addConstraint(Sketcher.Constraint("DistanceX", 21, 1, 21, 2, 2.0))
sketch1.addConstraint(Sketcher.Constraint("DistanceX", 45, 2, 45, 1, 20.0))
sketch1.addConstraint(Sketcher.Constraint("DistanceY", 2, 2, 2, 1, 155.0))
sketch1.addConstraint(Sketcher.Constraint("DistanceY", 10, 1, 10, 2, 85.0))
sketch1.addConstraint(Sketcher.Constraint("DistanceY", 52, 2, 52, 1, 60.0))
sketch1.addConstraint(Sketcher.Constraint("DistanceY", 1, 3, -1, 1, 60.0))
sketch1.addConstraint(Sketcher.Constraint("DistanceY", -1, 1, 16, 3, 25.0))
sketch1.addConstraint(Sketcher.Constraint("DistanceX", 17, 3, -1, 1, 55.0))
sketch1.addConstraint(Sketcher.Constraint("DistanceY", 18, 3, -1, 1, 5.0))
sketch1.addConstraint(Sketcher.Constraint("DistanceX", 20, 3, -1, 1, 28.0))
sketch1.addConstraint(Sketcher.Constraint("DistanceX", 24, 3, -1, 1, 40.0))
sketch1.addConstraint(Sketcher.Constraint("DistanceX", 27, 3, -1, 1, 20.0))
sketch1.addConstraint(Sketcher.Constraint("DistanceX", -1, 1, 32, 3, 15.0))
sketch1.addConstraint(Sketcher.Constraint("DistanceX", -1, 1, 36, 3, 47.0))
sketch1.addConstraint(Sketcher.Constraint("DistanceY", 49, 3, -1, 1, 147.0))
sketch1.addConstraint(Sketcher.Constraint("DistanceX", 50, 3, -1, 1, 91.0))
sketch1.addConstraint(Sketcher.Constraint("DistanceY", 50, 3, -1, 1, 173.0))
sketch1.addConstraint(Sketcher.Constraint("DistanceY", 55, 3, -1, 1, 160.0))
sketch1.addConstraint(Sketcher.Constraint("DistanceX", 56, 3, -1, 1, 59.0))
sketch1.addConstraint(Sketcher.Constraint("DistanceY", 57, 3, -1, 1, 191.0))
sketch1.addConstraint(Sketcher.Constraint("DistanceY", 58, 3, -1, 1, 210.0))
sketch1.addConstraint(Sketcher.Constraint("DistanceY", 62, 3, -1, 1, 185.0))
sketch1.addConstraint(Sketcher.Constraint("DistanceY", 65, 3, -1, 1, 105.0))
sketch1.addConstraint(Sketcher.Constraint("DistanceY", 45, 2, -1, 1, 127.0))
sketch1.addConstraint(Sketcher.Constraint("DistanceY", 51, 2, -1, 1, 140.0))
sketch1.addConstraint(Sketcher.Constraint("DistanceY", -1, 1, 17, 3, 39.5))
sketch1.addConstraint(Sketcher.Constraint("DistanceX", 19, 3, -1, 1, 72.5))
sketch1.addConstraint(Sketcher.Constraint("DistanceY", 19, 3, -1, 1, 17.5))
sketch1.addConstraint(Sketcher.Constraint("DistanceX", 26, 3, -1, 1, 30.5))
sketch1.addConstraint(Sketcher.Constraint("DistanceY", 27, 3, -1, 1, 5.5))
sketch1.addConstraint(Sketcher.Constraint("DistanceY", 28, 3, -1, 1, 76.5))
sketch1.addConstraint(Sketcher.Constraint("DistanceX", 29, 3, -1, 1, 21.5))
sketch1.addConstraint(Sketcher.Constraint("DistanceY", 29, 3, -1, 1, 40.5))
sketch1.addConstraint(Sketcher.Constraint("DistanceY", 39, 3, -1, 1, 24.5))
sketch1.addConstraint(Sketcher.Constraint("DistanceX", -1, 1, 40, 3, 14.5))
sketch1.addConstraint(Sketcher.Constraint("DistanceX", -1, 1, 41, 3, 22.5))
sketch1.addConstraint(Sketcher.Constraint("DistanceY", 41, 3, -1, 1, 39.5))
sketch1.addConstraint(Sketcher.Constraint("DistanceX", -1, 1, 44, 3, 72.5))
sketch1.addConstraint(Sketcher.Constraint("DistanceY", 63, 3, -1, 1, 89.5))
sketch1.addConstraint(Sketcher.Constraint("DistanceX", -1, 1, 64, 3, 17.67767))
sketch1.addConstraint(Sketcher.Constraint("DistanceY", 68, 3, -1, 1, 142.32233))
sketch1.addConstraint(Sketcher.Constraint("DistanceX", 61, 3, -1, 1, 38.890873))
sketch1.addConstraint(Sketcher.Constraint("DistanceY", 64, 3, -1, 1, 103.431458))
sketch1.addConstraint(Sketcher.Constraint("DistanceX", -1, 1, 68, 3, 56.568542))
sketch1.addConstraint(Sketcher.Constraint("DistanceY", 73, 3, -1, 1, 198.890873))
pad1 = doc.addObject("PartDesign::Pad", "Pad")
body.addObject(pad1)
pad1.Profile = sketch1
pad1.Length = 2
pad1.Reversed = True

doc.recompute()
